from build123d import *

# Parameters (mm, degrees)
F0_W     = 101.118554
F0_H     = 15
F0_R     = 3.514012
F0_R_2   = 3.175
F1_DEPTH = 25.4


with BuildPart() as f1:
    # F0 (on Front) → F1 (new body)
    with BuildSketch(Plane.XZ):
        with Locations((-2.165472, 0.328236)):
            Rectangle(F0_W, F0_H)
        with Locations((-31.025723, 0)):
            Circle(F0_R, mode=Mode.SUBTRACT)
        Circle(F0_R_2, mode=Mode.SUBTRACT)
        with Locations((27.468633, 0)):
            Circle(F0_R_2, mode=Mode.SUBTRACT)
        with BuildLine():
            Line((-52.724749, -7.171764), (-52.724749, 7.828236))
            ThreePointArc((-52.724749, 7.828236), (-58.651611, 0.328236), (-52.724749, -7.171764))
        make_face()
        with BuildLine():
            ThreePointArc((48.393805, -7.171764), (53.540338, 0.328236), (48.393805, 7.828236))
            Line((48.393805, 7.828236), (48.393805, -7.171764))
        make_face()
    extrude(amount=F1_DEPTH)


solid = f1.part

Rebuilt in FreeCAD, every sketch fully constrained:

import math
import FreeCAD as App
import Part
import Sketcher

V = App.Vector
Q = App.Units.Quantity

doc = App.newDocument("Part")
body = doc.addObject("PartDesign::Body", "Body")

# Sketch on XZ plane
sketch1 = body.newObject("Sketcher::SketchObject", "Sketch")
sketch1.AttachmentSupport = (doc.getObject("XZ_Plane"), [""])
sketch1.MapMode = "FlatFace"
sketch1.addGeometry([
    Part.LineSegment(V(-52.7, -7.2, 0), V(48.4, -7.2, 0)),  # 0
    Part.ArcOfCircle(Part.Circle(V(45.5, 0.3, 0), V(0, 0, 1), 8), math.radians(-69), math.radians(69)),  # 1
    Part.LineSegment(V(48.4, 7.8, 0), V(-52.7, 7.8, 0)),  # 2
    Part.ArcOfCircle(Part.Circle(V(-50.9, 0.3, 0), V(0, 0, 1), 7.7), math.radians(103), math.radians(257)),  # 3
    Part.Circle(V(-31, 0, 0), V(0, 0, 1), 3.5),  # 4
    Part.Circle(V(0, 0, 0), V(0, 0, 1), 3.2),  # 5
    Part.Circle(V(27.5, 0, 0), V(0, 0, 1), 3.2),  # 6
], False)
sketch1.addConstraint([
    Sketcher.Constraint("Coincident", 0, 2, 1, 1),
    Sketcher.Constraint("Coincident", 1, 2, 2, 1),
    Sketcher.Constraint("Coincident", 2, 2, 3, 1),
    Sketcher.Constraint("Coincident", 3, 2, 0, 1),
    Sketcher.Constraint("Horizontal", 0),
    Sketcher.Constraint("Horizontal", 2),
    Sketcher.Constraint("Coincident", 5, 3, -1, 1),
    Sketcher.Constraint("Equal", 5, 6),
    Sketcher.Constraint("PointOnObject", 4, 3, -1),
    Sketcher.Constraint("PointOnObject", 6, 3, -1),
    Sketcher.Constraint("Horizontal", 1, 3, 3, 3),
    Sketcher.Constraint("Vertical", 0, 2, 1, 2),
    Sketcher.Constraint("Diameter", 5, Q("0.25 in")),
    Sketcher.Constraint("Radius", 1, Q("8.038111 mm")),
    Sketcher.Constraint("Diameter", 4, Q("7.028024 mm")),
    Sketcher.Constraint("Radius", 3, Q("7.708775 mm")),
    Sketcher.Constraint("DistanceY", 0, 2, 1, 3, Q("7.5 mm")),
    Sketcher.Constraint("DistanceX", 0, 1, 0, 2, Q("101.118554 mm")),
    Sketcher.Constraint("DistanceX", 2, 2, -1, 1, Q("52.724749 mm")),
    Sketcher.Constraint("DistanceX", 4, 3, 1, 3, Q("76.52795 mm")),
    Sketcher.Constraint("DistanceX", 3, 3, 6, 3, Q("78.411469 mm")),
    Sketcher.Constraint("DistanceY", -1, 1, 1, 3, Q("0.328236 mm")),
])
pad1 = body.newObject("PartDesign::Pad", "Pad")
pad1.Profile = sketch1
pad1.Length = Q("1 in")

doc.recompute()
